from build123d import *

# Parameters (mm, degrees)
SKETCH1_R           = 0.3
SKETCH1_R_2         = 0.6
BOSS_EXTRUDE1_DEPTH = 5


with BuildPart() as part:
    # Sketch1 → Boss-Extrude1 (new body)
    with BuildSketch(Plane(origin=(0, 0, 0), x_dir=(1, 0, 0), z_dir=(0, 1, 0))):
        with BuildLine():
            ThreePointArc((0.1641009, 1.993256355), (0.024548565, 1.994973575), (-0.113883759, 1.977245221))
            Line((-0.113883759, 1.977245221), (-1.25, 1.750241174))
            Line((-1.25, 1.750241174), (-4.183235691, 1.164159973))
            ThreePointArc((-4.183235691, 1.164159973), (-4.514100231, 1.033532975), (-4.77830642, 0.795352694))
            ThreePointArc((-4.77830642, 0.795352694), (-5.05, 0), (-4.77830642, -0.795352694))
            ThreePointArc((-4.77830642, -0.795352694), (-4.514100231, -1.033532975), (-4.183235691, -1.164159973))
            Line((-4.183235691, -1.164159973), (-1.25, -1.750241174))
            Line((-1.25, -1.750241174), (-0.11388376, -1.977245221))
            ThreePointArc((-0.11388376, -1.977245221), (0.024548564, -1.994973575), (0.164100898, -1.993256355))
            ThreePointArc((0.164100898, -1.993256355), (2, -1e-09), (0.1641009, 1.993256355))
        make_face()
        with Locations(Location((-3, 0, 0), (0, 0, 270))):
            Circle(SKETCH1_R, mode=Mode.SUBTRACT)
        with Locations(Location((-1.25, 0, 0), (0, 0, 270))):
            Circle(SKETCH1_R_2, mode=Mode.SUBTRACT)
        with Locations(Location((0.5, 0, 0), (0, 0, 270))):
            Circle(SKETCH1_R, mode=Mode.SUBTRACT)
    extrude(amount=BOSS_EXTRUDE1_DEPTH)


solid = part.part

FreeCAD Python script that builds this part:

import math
import FreeCAD as App
import Part
import Sketcher
from FreeCAD import Vector

doc = App.newDocument("Part")
body = doc.addObject("PartDesign::Body", "Body")

# Sketch on XZ plane
sketch1 = body.newObject("Sketcher::SketchObject", "Sketch")
sketch1.AttachmentSupport = (doc.getObject("XZ_Plane"), [""])
sketch1.MapMode = "FlatFace"
sketch1.addGeometry(Part.ArcOfCircle(Part.Circle(Vector(0.08, -1, 0), Vector(0, 0, 1), 1), math.radians(-101.3), math.radians(-85.29)), False)
sketch1.addGeometry(Part.LineSegment(Vector(-0.11, -1.98, 0), Vector(-1.25, -1.75, 0)), False)
sketch1.addGeometry(Part.LineSegment(Vector(-1.25, -1.75, 0), Vector(-4.18, -1.16, 0)), False)
sketch1.addGeometry(Part.ArcOfCircle(Part.Circle(Vector(-3.99, -0.18, 0), Vector(0, 0, 1), 1), math.radians(-142), math.radians(-101)), False)
sketch1.addGeometry(Part.ArcOfCircle(Part.Circle(Vector(-3.75, 0, 0), Vector(0, 0, 1), 1.3), math.radians(142), math.radians(218)), False)
sketch1.addGeometry(Part.ArcOfCircle(Part.Circle(Vector(-3.99, 0.18, 0), Vector(0, 0, 1), 1), math.radians(101), math.radians(142)), False)
sketch1.addGeometry(Part.LineSegment(Vector(-4.18, 1.16, 0), Vector(-1.25, 1.75, 0)), False)
sketch1.addGeometry(Part.LineSegment(Vector(-1.25, 1.75, 0), Vector(-0.11, 1.98, 0)), False)
sketch1.addGeometry(Part.ArcOfCircle(Part.Circle(Vector(0.08, 1, 0), Vector(0, 0, 1), 1), math.radians(85.29), math.radians(101.3)), False)
sketch1.addGeometry(Part.ArcOfCircle(Part.Circle(Vector(0, 0, 0), Vector(0, 0, 1), 2), math.radians(-85), math.radians(85)), False)
sketch1.addGeometry(Part.Circle(Vector(-3, 0, 0), Vector(0, 0, 1), 0.3), False)
sketch1.addGeometry(Part.Circle(Vector(-1.25, 0, 0), Vector(0, 0, 1), 0.6), False)
sketch1.addGeometry(Part.Circle(Vector(0.5, 0, 0), Vector(0, 0, 1), 0.3), False)
sketch1.addConstraint(Sketcher.Constraint("Tangent", 0, 1, 1, 1))
sketch1.addConstraint(Sketcher.Constraint("Coincident", 1, 2, 2, 1))
sketch1.addConstraint(Sketcher.Constraint("Tangent", 2, 2, 3, 2))
sketch1.addConstraint(Sketcher.Constraint("Tangent", 3, 1, 4, 2))
sketch1.addConstraint(Sketcher.Constraint("Tangent", 4, 1, 5, 2))
sketch1.addConstraint(Sketcher.Constraint("Tangent", 5, 1, 6, 1))
sketch1.addConstraint(Sketcher.Constraint("Coincident", 6, 2, 7, 1))
sketch1.addConstraint(Sketcher.Constraint("Tangent", 7, 2, 8, 2))
sketch1.addConstraint(Sketcher.Constraint("Tangent", 8, 1, 9, 2))
sketch1.addConstraint(Sketcher.Constraint("Tangent", 9, 1, 0, 2))
sketch1.addConstraint(Sketcher.Constraint("Coincident", 9, 3, -1, 1))
sketch1.addConstraint(Sketcher.Constraint("Equal", 0, 3))
sketch1.addConstraint(Sketcher.Constraint("Equal", 3, 5))
sketch1.addConstraint(Sketcher.Constraint("Equal", 5, 8))
sketch1.addConstraint(Sketcher.Constraint("Equal", 10, 12))
sketch1.addConstraint(Sketcher.Constraint("Symmetric", 3, 3, 5, 3, -1))
sketch1.addConstraint(Sketcher.Constraint("Symmetric", 1, 2, 6, 2, -1))
sketch1.addConstraint(Sketcher.Constraint("PointOnObject", 10, 3, -1))
sketch1.addConstraint(Sketcher.Constraint("PointOnObject", 11, 3, -1))
sketch1.addConstraint(Sketcher.Constraint("PointOnObject", 12, 3, -1))
sketch1.addConstraint(Sketcher.Constraint("Parallel", 1, 2))
sketch1.addConstraint(Sketcher.Constraint("Parallel", 6, 7))
sketch1.addConstraint(Sketcher.Constraint("Vertical", 11, 3, 1, 2))
sketch1.addConstraint(Sketcher.Constraint("Radius", 0, 1.0))
sketch1.addConstraint(Sketcher.Constraint("Radius", 9, 2.0))
sketch1.addConstraint(Sketcher.Constraint("Diameter", 10, 0.6))
sketch1.addConstraint(Sketcher.Constraint("Diameter", 11, 1.2))
sketch1.addConstraint(Sketcher.Constraint("Radius", 4, 1.3))
sketch1.addConstraint(Sketcher.Constraint("DistanceX", 10, 3, -1, 1, 3.0))
sketch1.addConstraint(Sketcher.Constraint("DistanceX", -1, 1, 12, 3, 0.5))
sketch1.addConstraint(Sketcher.Constraint("DistanceX", 4, 3, 11, 3, 2.5))
sketch1.addConstraint(Sketcher.Constraint("DistanceX", 4, 3, -1, 1, 3.75))
sketch1.addConstraint(Sketcher.Constraint("DistanceX", 3, 3, -1, 1, 3.987301))
sketch1.addConstraint(Sketcher.Constraint("DistanceX", -1, 1, 8, 1, 0.164101))
pad1 = body.newObject("PartDesign::Pad", "Pad")
pad1.Profile = sketch1
pad1.Length = 5
pad1.Reversed = True

doc.recompute()
